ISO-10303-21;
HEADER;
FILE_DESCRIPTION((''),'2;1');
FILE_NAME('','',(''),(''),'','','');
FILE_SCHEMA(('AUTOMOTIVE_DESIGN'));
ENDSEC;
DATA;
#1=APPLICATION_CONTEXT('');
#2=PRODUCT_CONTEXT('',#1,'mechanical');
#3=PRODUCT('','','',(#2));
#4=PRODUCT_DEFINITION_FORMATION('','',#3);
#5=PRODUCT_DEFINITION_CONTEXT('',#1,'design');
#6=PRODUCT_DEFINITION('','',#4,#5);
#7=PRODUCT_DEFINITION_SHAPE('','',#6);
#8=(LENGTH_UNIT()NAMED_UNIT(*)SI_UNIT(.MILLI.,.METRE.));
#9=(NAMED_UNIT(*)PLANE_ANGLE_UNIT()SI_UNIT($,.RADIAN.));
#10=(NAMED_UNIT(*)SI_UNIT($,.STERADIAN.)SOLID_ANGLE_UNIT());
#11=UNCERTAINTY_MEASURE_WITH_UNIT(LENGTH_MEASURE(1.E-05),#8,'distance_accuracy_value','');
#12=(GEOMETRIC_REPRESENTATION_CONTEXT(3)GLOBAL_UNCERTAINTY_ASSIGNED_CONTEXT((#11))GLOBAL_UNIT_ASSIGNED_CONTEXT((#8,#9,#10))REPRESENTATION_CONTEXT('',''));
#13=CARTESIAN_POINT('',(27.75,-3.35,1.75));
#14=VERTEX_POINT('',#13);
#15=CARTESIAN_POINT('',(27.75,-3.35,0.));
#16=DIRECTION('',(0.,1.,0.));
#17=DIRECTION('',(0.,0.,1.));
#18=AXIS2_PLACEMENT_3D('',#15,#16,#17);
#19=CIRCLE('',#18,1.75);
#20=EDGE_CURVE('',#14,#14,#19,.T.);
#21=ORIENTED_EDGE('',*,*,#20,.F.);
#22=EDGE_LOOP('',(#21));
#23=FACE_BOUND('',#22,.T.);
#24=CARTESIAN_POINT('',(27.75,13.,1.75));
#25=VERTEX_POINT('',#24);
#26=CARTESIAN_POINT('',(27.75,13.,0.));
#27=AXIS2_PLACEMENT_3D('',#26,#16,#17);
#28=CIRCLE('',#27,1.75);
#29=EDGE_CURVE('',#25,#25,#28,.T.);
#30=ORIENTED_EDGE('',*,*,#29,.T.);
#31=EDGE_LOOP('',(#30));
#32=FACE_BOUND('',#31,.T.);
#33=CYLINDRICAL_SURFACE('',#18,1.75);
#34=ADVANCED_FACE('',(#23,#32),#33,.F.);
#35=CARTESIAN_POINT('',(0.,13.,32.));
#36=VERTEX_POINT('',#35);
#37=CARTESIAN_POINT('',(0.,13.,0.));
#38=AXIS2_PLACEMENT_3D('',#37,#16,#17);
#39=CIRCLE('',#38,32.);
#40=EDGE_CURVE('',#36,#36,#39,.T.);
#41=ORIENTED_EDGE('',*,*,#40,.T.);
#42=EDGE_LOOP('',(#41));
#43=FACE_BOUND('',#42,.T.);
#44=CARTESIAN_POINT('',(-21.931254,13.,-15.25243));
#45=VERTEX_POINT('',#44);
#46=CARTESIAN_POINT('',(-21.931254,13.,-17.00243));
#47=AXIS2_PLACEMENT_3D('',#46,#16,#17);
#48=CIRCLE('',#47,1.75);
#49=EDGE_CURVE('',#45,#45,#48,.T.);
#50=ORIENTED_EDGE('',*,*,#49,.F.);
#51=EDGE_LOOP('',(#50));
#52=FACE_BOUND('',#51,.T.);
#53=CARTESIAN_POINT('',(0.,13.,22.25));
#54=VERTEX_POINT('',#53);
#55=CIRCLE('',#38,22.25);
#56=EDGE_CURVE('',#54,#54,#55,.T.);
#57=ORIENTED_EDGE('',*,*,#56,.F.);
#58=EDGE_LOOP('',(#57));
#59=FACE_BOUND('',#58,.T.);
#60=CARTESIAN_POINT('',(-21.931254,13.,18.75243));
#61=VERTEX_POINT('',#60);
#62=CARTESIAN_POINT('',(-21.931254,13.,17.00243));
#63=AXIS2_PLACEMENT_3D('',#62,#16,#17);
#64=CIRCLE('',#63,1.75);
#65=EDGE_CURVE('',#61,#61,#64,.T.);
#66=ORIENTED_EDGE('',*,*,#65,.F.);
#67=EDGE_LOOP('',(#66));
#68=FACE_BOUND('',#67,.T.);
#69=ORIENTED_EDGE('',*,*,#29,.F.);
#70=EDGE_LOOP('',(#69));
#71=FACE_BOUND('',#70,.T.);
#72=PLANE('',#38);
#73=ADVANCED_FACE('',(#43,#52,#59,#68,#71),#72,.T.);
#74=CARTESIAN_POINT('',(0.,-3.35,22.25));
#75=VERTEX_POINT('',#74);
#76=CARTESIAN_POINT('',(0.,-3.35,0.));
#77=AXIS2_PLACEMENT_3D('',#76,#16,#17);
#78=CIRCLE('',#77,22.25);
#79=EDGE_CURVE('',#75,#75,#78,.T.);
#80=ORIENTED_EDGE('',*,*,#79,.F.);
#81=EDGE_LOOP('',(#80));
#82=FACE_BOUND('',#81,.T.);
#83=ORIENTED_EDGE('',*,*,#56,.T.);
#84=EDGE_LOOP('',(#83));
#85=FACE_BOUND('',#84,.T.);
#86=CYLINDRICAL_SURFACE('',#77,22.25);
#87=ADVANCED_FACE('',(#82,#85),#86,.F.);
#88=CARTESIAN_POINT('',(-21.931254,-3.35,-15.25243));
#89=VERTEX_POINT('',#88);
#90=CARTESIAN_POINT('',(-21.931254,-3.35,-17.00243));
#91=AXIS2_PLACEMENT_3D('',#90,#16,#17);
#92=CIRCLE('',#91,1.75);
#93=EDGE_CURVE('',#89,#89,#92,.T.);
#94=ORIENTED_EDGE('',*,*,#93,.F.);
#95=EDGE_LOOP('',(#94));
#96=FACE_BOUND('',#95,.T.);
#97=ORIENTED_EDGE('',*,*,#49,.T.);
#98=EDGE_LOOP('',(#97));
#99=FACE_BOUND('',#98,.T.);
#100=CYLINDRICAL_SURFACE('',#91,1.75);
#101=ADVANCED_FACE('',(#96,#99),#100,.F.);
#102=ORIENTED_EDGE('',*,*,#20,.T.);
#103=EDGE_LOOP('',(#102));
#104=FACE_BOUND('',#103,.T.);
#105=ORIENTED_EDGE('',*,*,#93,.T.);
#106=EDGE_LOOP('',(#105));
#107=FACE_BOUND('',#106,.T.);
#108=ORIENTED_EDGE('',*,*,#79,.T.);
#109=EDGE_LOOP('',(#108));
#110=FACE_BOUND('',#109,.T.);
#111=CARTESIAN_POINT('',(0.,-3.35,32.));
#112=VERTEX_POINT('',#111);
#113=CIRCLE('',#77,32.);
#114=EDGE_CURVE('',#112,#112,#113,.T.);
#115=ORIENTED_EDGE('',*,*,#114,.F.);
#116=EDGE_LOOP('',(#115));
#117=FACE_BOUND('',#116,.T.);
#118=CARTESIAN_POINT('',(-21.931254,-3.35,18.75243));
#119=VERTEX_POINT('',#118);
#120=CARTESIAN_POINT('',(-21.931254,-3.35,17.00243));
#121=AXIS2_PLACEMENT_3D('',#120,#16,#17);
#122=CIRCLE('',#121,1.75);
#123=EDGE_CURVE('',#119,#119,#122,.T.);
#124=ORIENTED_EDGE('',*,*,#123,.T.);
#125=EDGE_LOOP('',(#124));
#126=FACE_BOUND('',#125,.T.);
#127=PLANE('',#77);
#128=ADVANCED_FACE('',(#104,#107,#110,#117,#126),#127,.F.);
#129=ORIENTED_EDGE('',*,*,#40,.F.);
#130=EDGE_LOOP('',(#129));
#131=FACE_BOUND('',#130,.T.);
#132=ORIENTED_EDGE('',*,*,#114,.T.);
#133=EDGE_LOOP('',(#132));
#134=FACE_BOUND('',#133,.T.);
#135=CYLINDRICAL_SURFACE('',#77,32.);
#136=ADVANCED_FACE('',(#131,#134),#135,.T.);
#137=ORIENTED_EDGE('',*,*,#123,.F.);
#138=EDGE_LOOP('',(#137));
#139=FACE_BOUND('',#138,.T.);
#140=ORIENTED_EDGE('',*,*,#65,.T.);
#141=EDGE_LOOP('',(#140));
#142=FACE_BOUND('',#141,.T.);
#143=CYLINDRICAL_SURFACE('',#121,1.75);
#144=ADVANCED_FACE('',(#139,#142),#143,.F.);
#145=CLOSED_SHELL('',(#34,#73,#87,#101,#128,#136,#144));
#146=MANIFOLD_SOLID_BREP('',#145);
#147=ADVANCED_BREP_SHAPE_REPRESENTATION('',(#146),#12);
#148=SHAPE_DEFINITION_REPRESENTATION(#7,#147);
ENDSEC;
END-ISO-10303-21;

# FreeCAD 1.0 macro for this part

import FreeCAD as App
import Part
import Sketcher

doc = App.newDocument("Part")
body = doc.addObject("PartDesign::Body", "Body")

# Sketch on XZ plane
sketch1 = doc.addObject("Sketcher::SketchObject", "Sketch")
body.addObject(sketch1)
sketch1.AttachmentSupport = (doc.XZ_Plane, [""])
sketch1.MapMode = "FlatFace"
sketch1.addGeometry([
    Part.Circle(App.Vector(0, 0, 0), App.Vector(0, 0, 1), 32),  # 0
    Part.Circle(App.Vector(-21.9, -17, 0), App.Vector(0, 0, 1), 1.8),  # 1
    Part.Circle(App.Vector(-21.9, 17, 0), App.Vector(0, 0, 1), 1.8),  # 2
    Part.Circle(App.Vector(0, 0, 0), App.Vector(0, 0, 1), 22.2),  # 3
    Part.Circle(App.Vector(27.8, 0, 0), App.Vector(0, 0, 1), 1.8),  # 4
], False)
sketch1.addConstraint([
    Sketcher.Constraint("Coincident", 0, 3, -1, 1),
    Sketcher.Constraint("Coincident", 3, 3, -1, 1),
    Sketcher.Constraint("Equal", 1, 2),
    Sketcher.Constraint("Equal", 2, 4),
    Sketcher.Constraint("Symmetric", 1, 3, 2, 3, -1),
    Sketcher.Constraint("PointOnObject", 4, 3, -1),
    Sketcher.Constraint("Diameter", 0, 64.0),
    Sketcher.Constraint("Diameter", 1, 3.5),
    Sketcher.Constraint("Diameter", 3, 44.5),
    Sketcher.Constraint("DistanceX", -1, 1, 4, 3, 27.75),
    Sketcher.Constraint("DistanceY", 1, 3, -1, 1, 17.00243),
    Sketcher.Constraint("DistanceX", 1, 3, -1, 1, 21.931254),
])
pad1 = doc.addObject("PartDesign::Pad", "Pad")
body.addObject(pad1)
pad1.Profile = sketch1
pad1.Type = "TwoLengths"
pad1.Length = 13
pad1.Length2 = 3.35
pad1.Reversed = True

doc.recompute()
